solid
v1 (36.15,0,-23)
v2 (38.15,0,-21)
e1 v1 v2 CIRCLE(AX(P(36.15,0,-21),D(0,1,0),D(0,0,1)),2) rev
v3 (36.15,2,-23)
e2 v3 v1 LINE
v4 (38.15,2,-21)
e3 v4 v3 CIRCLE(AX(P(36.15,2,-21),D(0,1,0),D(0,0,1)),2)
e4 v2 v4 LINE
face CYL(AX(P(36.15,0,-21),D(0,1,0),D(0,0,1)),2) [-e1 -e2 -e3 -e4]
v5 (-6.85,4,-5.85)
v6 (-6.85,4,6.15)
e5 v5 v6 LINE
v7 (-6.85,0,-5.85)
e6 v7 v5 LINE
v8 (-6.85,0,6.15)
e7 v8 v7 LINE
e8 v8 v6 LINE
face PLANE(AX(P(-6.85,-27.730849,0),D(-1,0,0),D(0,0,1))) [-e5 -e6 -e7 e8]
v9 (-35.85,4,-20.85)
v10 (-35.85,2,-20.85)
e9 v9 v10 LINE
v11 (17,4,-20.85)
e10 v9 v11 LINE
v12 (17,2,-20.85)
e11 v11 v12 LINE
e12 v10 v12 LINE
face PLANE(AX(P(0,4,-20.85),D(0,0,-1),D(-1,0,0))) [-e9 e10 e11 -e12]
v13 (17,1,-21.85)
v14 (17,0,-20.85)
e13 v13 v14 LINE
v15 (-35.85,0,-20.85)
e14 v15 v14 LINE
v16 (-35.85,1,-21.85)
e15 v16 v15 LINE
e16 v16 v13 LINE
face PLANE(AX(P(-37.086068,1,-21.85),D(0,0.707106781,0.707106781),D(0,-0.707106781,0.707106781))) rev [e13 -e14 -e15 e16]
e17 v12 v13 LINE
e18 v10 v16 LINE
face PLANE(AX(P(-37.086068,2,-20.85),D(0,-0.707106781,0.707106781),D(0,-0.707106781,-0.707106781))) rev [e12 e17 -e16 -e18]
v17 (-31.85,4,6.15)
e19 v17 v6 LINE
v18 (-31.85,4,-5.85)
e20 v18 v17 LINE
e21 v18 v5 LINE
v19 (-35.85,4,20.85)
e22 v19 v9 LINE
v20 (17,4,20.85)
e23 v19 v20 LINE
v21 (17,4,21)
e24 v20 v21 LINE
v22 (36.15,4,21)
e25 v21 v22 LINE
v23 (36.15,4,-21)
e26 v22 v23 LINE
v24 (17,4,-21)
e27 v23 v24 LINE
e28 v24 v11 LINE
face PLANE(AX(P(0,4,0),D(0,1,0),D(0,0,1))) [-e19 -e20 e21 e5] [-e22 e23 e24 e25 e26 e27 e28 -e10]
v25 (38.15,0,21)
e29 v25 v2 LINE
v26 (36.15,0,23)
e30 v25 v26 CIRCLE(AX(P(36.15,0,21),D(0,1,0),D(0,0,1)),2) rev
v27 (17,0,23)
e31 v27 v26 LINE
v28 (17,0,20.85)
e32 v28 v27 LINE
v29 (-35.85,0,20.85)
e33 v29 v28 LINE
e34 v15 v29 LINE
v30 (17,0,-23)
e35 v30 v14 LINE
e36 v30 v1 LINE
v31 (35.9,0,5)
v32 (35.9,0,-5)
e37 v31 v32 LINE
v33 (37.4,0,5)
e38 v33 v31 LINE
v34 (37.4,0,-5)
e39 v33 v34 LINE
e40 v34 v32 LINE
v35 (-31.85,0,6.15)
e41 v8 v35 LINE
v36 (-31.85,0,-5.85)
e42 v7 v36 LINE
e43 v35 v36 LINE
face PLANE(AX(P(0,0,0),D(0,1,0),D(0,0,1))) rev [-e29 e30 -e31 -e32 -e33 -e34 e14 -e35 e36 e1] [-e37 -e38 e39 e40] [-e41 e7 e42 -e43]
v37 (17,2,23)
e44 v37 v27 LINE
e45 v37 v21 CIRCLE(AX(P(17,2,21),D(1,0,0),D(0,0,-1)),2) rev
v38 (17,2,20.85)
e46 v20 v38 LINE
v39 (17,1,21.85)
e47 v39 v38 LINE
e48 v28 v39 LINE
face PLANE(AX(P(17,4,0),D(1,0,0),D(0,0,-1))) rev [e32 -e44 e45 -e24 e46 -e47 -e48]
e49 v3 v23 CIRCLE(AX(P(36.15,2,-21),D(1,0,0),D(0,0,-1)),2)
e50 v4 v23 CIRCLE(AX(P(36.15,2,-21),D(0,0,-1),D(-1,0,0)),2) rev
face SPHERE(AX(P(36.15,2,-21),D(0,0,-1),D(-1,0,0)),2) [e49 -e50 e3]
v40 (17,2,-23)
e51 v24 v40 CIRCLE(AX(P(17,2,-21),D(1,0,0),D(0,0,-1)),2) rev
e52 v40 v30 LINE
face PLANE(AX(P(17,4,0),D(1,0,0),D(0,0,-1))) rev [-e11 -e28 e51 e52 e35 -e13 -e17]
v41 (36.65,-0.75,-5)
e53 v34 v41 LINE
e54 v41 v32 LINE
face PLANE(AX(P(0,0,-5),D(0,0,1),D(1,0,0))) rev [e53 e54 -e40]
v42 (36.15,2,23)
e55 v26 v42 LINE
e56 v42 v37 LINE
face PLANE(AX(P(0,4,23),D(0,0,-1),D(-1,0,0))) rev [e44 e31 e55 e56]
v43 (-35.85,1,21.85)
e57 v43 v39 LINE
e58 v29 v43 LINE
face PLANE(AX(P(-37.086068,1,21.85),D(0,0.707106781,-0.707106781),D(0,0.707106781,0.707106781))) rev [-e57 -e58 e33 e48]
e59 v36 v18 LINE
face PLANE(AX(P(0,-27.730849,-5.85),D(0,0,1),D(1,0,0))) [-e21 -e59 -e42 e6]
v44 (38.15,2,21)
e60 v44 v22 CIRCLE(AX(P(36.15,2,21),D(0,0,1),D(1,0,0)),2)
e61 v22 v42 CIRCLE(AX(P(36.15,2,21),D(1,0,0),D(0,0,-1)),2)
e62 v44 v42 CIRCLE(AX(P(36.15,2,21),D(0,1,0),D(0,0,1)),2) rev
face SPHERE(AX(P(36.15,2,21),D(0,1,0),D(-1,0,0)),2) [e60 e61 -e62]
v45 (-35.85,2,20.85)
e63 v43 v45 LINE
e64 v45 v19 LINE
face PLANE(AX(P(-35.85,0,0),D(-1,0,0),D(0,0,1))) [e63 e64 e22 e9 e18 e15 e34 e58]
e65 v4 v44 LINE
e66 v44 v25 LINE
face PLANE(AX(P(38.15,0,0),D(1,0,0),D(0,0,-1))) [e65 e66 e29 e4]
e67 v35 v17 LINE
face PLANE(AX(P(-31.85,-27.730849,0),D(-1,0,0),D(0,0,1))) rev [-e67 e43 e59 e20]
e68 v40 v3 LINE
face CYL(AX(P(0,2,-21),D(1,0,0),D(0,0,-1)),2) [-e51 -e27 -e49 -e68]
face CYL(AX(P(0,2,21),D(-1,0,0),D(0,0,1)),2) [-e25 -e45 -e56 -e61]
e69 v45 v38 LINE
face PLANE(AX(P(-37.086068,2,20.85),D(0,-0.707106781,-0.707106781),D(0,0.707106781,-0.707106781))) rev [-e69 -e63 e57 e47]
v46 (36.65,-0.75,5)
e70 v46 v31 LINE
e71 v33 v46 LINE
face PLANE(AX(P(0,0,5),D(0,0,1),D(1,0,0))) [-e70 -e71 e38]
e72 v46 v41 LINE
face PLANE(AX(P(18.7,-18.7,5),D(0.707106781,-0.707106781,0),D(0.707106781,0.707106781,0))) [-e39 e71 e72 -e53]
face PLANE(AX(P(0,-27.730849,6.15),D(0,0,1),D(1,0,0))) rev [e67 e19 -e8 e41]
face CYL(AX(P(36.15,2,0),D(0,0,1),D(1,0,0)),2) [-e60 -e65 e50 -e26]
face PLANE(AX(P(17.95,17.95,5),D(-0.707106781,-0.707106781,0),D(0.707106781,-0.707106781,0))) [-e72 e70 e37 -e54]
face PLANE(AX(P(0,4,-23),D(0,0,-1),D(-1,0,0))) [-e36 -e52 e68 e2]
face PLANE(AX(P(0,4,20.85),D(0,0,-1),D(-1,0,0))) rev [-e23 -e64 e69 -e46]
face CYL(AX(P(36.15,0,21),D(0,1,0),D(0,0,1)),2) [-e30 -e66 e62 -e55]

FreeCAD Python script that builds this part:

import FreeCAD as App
import Part
import Sketcher
from FreeCAD import Vector
Q = App.Units.Quantity


def edges_at(feature, points):
    """Names of the edges that pass closest to the given points."""
    edges = feature.Shape.Edges
    near = lambda p: min(range(len(edges)), key=lambda i: edges[i].distToShape(Part.Vertex(*p))[0])
    return sorted({f"Edge{near(p) + 1}" for p in points})

doc = App.newDocument("Part")
params = doc.addObject("Spreadsheet::Sheet", "Params")
for row, (alias, value) in enumerate([
    ("sketch1_width", "20 mm"),
    ("sketch1_height", "46 mm"),
    ("sketch1_height2", "41.7 mm"),
    ("sketch1_width2", "51.85 mm"),
    ("pad1_length", "4 mm"),
    ("sketch2_width", "2 mm"),
    ("pad2_length", "51.85 mm"),
    ("sketch3_width", "2 mm"),
    ("pad3_length", "51.85 mm"),
    ("sketch4_width", "25 mm"),
    ("sketch4_height", "12 mm"),
    ("pocket1_length", "4 mm"),
    ("sketch5_width", "4 mm"),
    ("sketch5_height", "46 mm"),
    ("pad4_length", "1.15 mm"),
    ("sketch6_width", "1.5 mm"),
    ("pad5_length", "10 mm"),
    ("sketch7_width", "2 mm"),
    ("sketch7_height", "41.7 mm"),
    ("pad6_length", "1 mm"),
    ("fillet_radius", "2 mm"),
], start=1):
    params.set(f"A{row}", alias)
    params.set(f"B{row}", "=" + value)
    params.setAlias(f"B{row}", alias)

body = doc.addObject("PartDesign::Body", "Body")

sketch1 = body.newObject("Sketcher::SketchObject", "Sketch")
sketch1.AttachmentSupport = (doc.getObject("XZ_Plane"), [""])
sketch1.MapMode = "FlatFace"
sketch1.addGeometry([
    Part.LineSegment(Vector(17, -20.85, 0), Vector(-34.85, -20.85, 0)),
    Part.LineSegment(Vector(-34.85, -20.85, 0), Vector(-34.85, 20.85, 0)),
    Part.LineSegment(Vector(-34.85, 20.85, 0), Vector(17, 20.85, 0)),
    Part.LineSegment(Vector(17, 20.85, 0), Vector(17, 23, 0)),
    Part.LineSegment(Vector(17, 23, 0), Vector(37, 23, 0)),
    Part.LineSegment(Vector(37, 23, 0), Vector(37, -23, 0)),
    Part.LineSegment(Vector(37, -23, 0), Vector(17, -23, 0)),
    Part.LineSegment(Vector(17, -23, 0), Vector(17, -20.85, 0)),
], False)
sketch1.addConstraint([
    Sketcher.Constraint("Coincident", 0, 2, 1, 1),
    Sketcher.Constraint("Coincident", 1, 2, 2, 1),
    Sketcher.Constraint("Coincident", 2, 2, 3, 1),
    Sketcher.Constraint("Coincident", 3, 2, 4, 1),
    Sketcher.Constraint("Coincident", 4, 2, 5, 1),
    Sketcher.Constraint("Coincident", 5, 2, 6, 1),
    Sketcher.Constraint("Coincident", 6, 2, 7, 1),
    Sketcher.Constraint("Coincident", 7, 2, 0, 1),
    Sketcher.Constraint("Horizontal", 0),
    Sketcher.Constraint("Vertical", 1),
    Sketcher.Constraint("Horizontal", 2),
    Sketcher.Constraint("Vertical", 3),
    Sketcher.Constraint("Horizontal", 4),
    Sketcher.Constraint("Vertical", 5),
    Sketcher.Constraint("Horizontal", 6),
    Sketcher.Constraint("Vertical", 7),
    Sketcher.Constraint("Symmetric", 3, 2, 6, 2, -1),
    Sketcher.Constraint("Equal", 3, 7),
    Sketcher.Constraint("DistanceX", 4, 1, 4, 2, Q("20 mm")),
    Sketcher.Constraint("DistanceY", 5, 2, 5, 1, Q("46 mm")),
    Sketcher.Constraint("DistanceY", 1, 1, 1, 2, Q("41.7 mm")),
    Sketcher.Constraint("DistanceX", -1, 1, 2, 2, Q("17 mm")),
    Sketcher.Constraint("DistanceX", 0, 2, 0, 1, Q("51.85 mm")),
])
sketch1.setExpression("Constraints[18]", "Params.sketch1_width")
sketch1.setExpression("Constraints[19]", "Params.sketch1_height")
sketch1.setExpression("Constraints[20]", "Params.sketch1_height2")
sketch1.setExpression("Constraints[22]", "Params.sketch1_width2")
pad1 = body.newObject("PartDesign::Pad", "Pad")
pad1.Profile = sketch1
pad1.setExpression("Length", "Params.pad1_length")
pad1.Reversed = True

sketch2 = body.newObject("Sketcher::SketchObject", "Sketch001")
sketch2.AttachmentSupport = (doc.getObject("YZ_Plane"), [""])
sketch2.MapMode = "FlatFace"
sketch2.AttachmentOffset = App.Placement(Vector(0, 0, 17), App.Rotation())
sketch2.addGeometry([
    Part.LineSegment(Vector(2, -20.85, 0), Vector(1, -21.85, 0)),
    Part.LineSegment(Vector(1, -21.85, 0), Vector(0, -20.85, 0)),
    Part.LineSegment(Vector(0, -20.85, 0), Vector(2, -20.85, 0)),
], False)
sketch2.addConstraint([
    Sketcher.Constraint("Coincident", 0, 2, 1, 1),
    Sketcher.Constraint("Coincident", 1, 2, 2, 1),
    Sketcher.Constraint("Coincident", 2, 2, 0, 1),
    Sketcher.Constraint("Horizontal", 2),
    Sketcher.Constraint("PointOnObject", 1, 2, -2),
    Sketcher.Constraint("Perpendicular", 0, 1),
    Sketcher.Constraint("Equal", 0, 1),
    Sketcher.Constraint("DistanceX", 2, 1, 2, 2, Q("2 mm")),
    Sketcher.Constraint("DistanceY", 0, 2, -1, 1, Q("21.85 mm")),
])
sketch2.setExpression("Constraints[7]", "Params.sketch2_width")
pad2 = body.newObject("PartDesign::Pad", "Pad001")
pad2.Profile = sketch2
pad2.setExpression("Length", "Params.pad2_length")
pad2.Reversed = True

sketch3 = body.newObject("Sketcher::SketchObject", "Sketch002")
sketch3.AttachmentSupport = (doc.getObject("YZ_Plane"), [""])
sketch3.MapMode = "FlatFace"
sketch3.AttachmentOffset = App.Placement(Vector(0, 0, 17), App.Rotation())
sketch3.addGeometry([
    Part.LineSegment(Vector(1, 21.85, 0), Vector(2, 20.85, 0)),
    Part.LineSegment(Vector(2, 20.85, 0), Vector(0, 20.85, 0)),
    Part.LineSegment(Vector(0, 20.85, 0), Vector(1, 21.85, 0)),
], False)
sketch3.addConstraint([
    Sketcher.Constraint("Coincident", 0, 2, 1, 1),
    Sketcher.Constraint("Coincident", 1, 2, 2, 1),
    Sketcher.Constraint("Coincident", 2, 2, 0, 1),
    Sketcher.Constraint("Horizontal", 1),
    Sketcher.Constraint("PointOnObject", 1, 2, -2),
    Sketcher.Constraint("Perpendicular", 0, 2),
    Sketcher.Constraint("Equal", 0, 2),
    Sketcher.Constraint("DistanceX", 1, 2, 1, 1, Q("2 mm")),
    Sketcher.Constraint("DistanceY", -1, 1, 0, 2, Q("20.85 mm")),
])
sketch3.setExpression("Constraints[7]", "Params.sketch3_width")
pad3 = body.newObject("PartDesign::Pad", "Pad002")
pad3.Profile = sketch3
pad3.setExpression("Length", "Params.pad3_length")
pad3.Reversed = True

sketch4 = body.newObject("Sketcher::SketchObject", "Sketch003")
sketch4.AttachmentSupport = (doc.getObject("XZ_Plane"), [""])
sketch4.MapMode = "FlatFace"
sketch4.AttachmentOffset = App.Placement(Vector(0, 0, -4), App.Rotation())
sketch4.addGeometry([
    Part.LineSegment(Vector(-31.85, -5.85, 0), Vector(-31.85, 6.15, 0)),
    Part.LineSegment(Vector(-31.85, 6.15, 0), Vector(-6.85, 6.15, 0)),
    Part.LineSegment(Vector(-6.85, 6.15, 0), Vector(-6.85, -5.85, 0)),
    Part.LineSegment(Vector(-6.85, -5.85, 0), Vector(-31.85, -5.85, 0)),
], False)
sketch4.addConstraint([
    Sketcher.Constraint("Coincident", 0, 2, 1, 1),
    Sketcher.Constraint("Coincident", 1, 2, 2, 1),
    Sketcher.Constraint("Coincident", 2, 2, 3, 1),
    Sketcher.Constraint("Coincident", 3, 2, 0, 1),
    Sketcher.Constraint("Vertical", 0),
    Sketcher.Constraint("Horizontal", 1),
    Sketcher.Constraint("Vertical", 2),
    Sketcher.Constraint("Horizontal", 3),
    Sketcher.Constraint("DistanceX", 1, 1, 1, 2, Q("25 mm")),
    Sketcher.Constraint("DistanceY", 0, 1, 0, 2, Q("12 mm")),
    Sketcher.Constraint("DistanceX", 0, 2, -1, 1, Q("31.85 mm")),
    Sketcher.Constraint("DistanceY", -1, 1, 0, 2, Q("6.15 mm")),
])
sketch4.setExpression("Constraints[8]", "Params.sketch4_width")
sketch4.setExpression("Constraints[9]", "Params.sketch4_height")
pocket1 = body.newObject("PartDesign::Pocket", "Pocket")
pocket1.Profile = sketch4
pocket1.setExpression("Length", "Params.pocket1_length")
pocket1.Reversed = True

sketch5 = body.newObject("Sketcher::SketchObject", "Sketch004")
sketch5.AttachmentSupport = (doc.getObject("YZ_Plane"), [""])
sketch5.MapMode = "FlatFace"
sketch5.AttachmentOffset = App.Placement(Vector(0, 0, 37), App.Rotation())
sketch5.addGeometry([
    Part.LineSegment(Vector(4, 23, 0), Vector(0, 23, 0)),
    Part.LineSegment(Vector(0, 23, 0), Vector(0, -23, 0)),
    Part.LineSegment(Vector(0, -23, 0), Vector(4, -23, 0)),
    Part.LineSegment(Vector(4, -23, 0), Vector(4, 23, 0)),
], False)
sketch5.addConstraint([
    Sketcher.Constraint("Coincident", 0, 2, 1, 1),
    Sketcher.Constraint("Coincident", 1, 2, 2, 1),
    Sketcher.Constraint("Coincident", 2, 2, 3, 1),
    Sketcher.Constraint("Coincident", 3, 2, 0, 1),
    Sketcher.Constraint("Horizontal", 0),
    Sketcher.Constraint("Vertical", 1),
    Sketcher.Constraint("Horizontal", 2),
    Sketcher.Constraint("Vertical", 3),
    Sketcher.Constraint("Symmetric", 0, 2, 1, 2, -1, 1),
    Sketcher.Constraint("DistanceX", 0, 2, 0, 1, Q("4 mm")),
    Sketcher.Constraint("DistanceY", 1, 2, 1, 1, Q("46 mm")),
])
sketch5.setExpression("Constraints[9]", "Params.sketch5_width")
sketch5.setExpression("Constraints[10]", "Params.sketch5_height")
pad4 = body.newObject("PartDesign::Pad", "Pad003")
pad4.Profile = sketch5
pad4.setExpression("Length", "Params.pad4_length")

sketch6 = body.newObject("Sketcher::SketchObject", "Sketch005")
sketch6.AttachmentSupport = (doc.getObject("XY_Plane"), [""])
sketch6.MapMode = "FlatFace"
sketch6.addGeometry([
    Part.LineSegment(Vector(36.65, -0.75, 0), Vector(37.4, 0, 0)),
    Part.LineSegment(Vector(37.4, 0, 0), Vector(35.9, 0, 0)),
    Part.LineSegment(Vector(35.9, 0, 0), Vector(36.65, -0.75, 0)),
], False)
sketch6.addConstraint([
    Sketcher.Constraint("Coincident", 0, 2, 1, 1),
    Sketcher.Constraint("Coincident", 1, 2, 2, 1),
    Sketcher.Constraint("Coincident", 2, 2, 0, 1),
    Sketcher.Constraint("Horizontal", 1),
    Sketcher.Constraint("PointOnObject", 0, 2, -1),
    Sketcher.Constraint("Perpendicular", 0, 2),
    Sketcher.Constraint("Equal", 0, 2),
    Sketcher.Constraint("DistanceX", 1, 2, 1, 1, Q("1.5 mm")),
    Sketcher.Constraint("DistanceX", -1, 1, 0, 2, Q("37.4 mm")),
])
sketch6.setExpression("Constraints[7]", "Params.sketch6_width")
pad5 = body.newObject("PartDesign::Pad", "Pad004")
pad5.Profile = sketch6
pad5.setExpression("Length", "Params.pad5_length")
pad5.Midplane = True

sketch7 = body.newObject("Sketcher::SketchObject", "Sketch006")
sketch7.AttachmentSupport = (doc.getObject("YZ_Plane"), [""])
sketch7.MapMode = "FlatFace"
sketch7.AttachmentOffset = App.Placement(Vector(0, 0, -34.85), App.Rotation())
sketch7.addGeometry([
    Part.LineSegment(Vector(0, -20.85, 0), Vector(0, 20.85, 0)),
    Part.LineSegment(Vector(0, 20.85, 0), Vector(1, 21.85, 0)),
    Part.LineSegment(Vector(1, 21.85, 0), Vector(2, 20.85, 0)),
    Part.LineSegment(Vector(2, 20.85, 0), Vector(4, 20.85, 0)),
    Part.LineSegment(Vector(4, 20.85, 0), Vector(4, -20.85, 0)),
    Part.LineSegment(Vector(4, -20.85, 0), Vector(2, -20.85, 0)),
    Part.LineSegment(Vector(2, -20.85, 0), Vector(1, -21.85, 0)),
    Part.LineSegment(Vector(1, -21.85, 0), Vector(0, -20.85, 0)),
], False)
sketch7.addConstraint([
    Sketcher.Constraint("Coincident", 0, 2, 1, 1),
    Sketcher.Constraint("Coincident", 1, 2, 2, 1),
    Sketcher.Constraint("Coincident", 2, 2, 3, 1),
    Sketcher.Constraint("Coincident", 3, 2, 4, 1),
    Sketcher.Constraint("Coincident", 4, 2, 5, 1),
    Sketcher.Constraint("Coincident", 5, 2, 6, 1),
    Sketcher.Constraint("Coincident", 6, 2, 7, 1),
    Sketcher.Constraint("Coincident", 7, 2, 0, 1),
    Sketcher.Constraint("Vertical", 0),
    Sketcher.Constraint("Horizontal", 3),
    Sketcher.Constraint("Vertical", 4),
    Sketcher.Constraint("Horizontal", 5),
    Sketcher.Constraint("Symmetric", 0, 2, 7, 2, -1, 1),
    Sketcher.Constraint("Symmetric", 2, 2, 5, 2, -1),
    Sketcher.Constraint("Symmetric", 1, 2, 6, 2, -1),
    Sketcher.Constraint("Perpendicular", 1, 2),
    Sketcher.Constraint("Perpendicular", 2, 6),
    Sketcher.Constraint("Horizontal", 0, 2, 2, 2),
    Sketcher.Constraint("DistanceX", 3, 1, 3, 2, Q("2 mm")),
    Sketcher.Constraint("DistanceY", 0, 1, 0, 2, Q("41.7 mm")),
    Sketcher.Constraint("DistanceX", -1, 1, 1, 2, Q("1 mm")),
])
sketch7.setExpression("Constraints[18]", "Params.sketch7_width")
sketch7.setExpression("Constraints[19]", "Params.sketch7_height")
pad6 = body.newObject("PartDesign::Pad", "Pad005")
pad6.Profile = sketch7
pad6.setExpression("Length", "Params.pad6_length")
pad6.Reversed = True
doc.recompute()

fillet = body.newObject("PartDesign::Fillet", "Fillet")
fillet.Base = (pad6, edges_at(pad6, [
    (27.575, 4, 23),
    (27.575, 4, -23),
    (38.15, 2, 23),
    (38.15, 2, -23),
    (38.15, 4, 0),
]))
fillet.setExpression("Radius", "Params.fillet_radius")

doc.recompute()
